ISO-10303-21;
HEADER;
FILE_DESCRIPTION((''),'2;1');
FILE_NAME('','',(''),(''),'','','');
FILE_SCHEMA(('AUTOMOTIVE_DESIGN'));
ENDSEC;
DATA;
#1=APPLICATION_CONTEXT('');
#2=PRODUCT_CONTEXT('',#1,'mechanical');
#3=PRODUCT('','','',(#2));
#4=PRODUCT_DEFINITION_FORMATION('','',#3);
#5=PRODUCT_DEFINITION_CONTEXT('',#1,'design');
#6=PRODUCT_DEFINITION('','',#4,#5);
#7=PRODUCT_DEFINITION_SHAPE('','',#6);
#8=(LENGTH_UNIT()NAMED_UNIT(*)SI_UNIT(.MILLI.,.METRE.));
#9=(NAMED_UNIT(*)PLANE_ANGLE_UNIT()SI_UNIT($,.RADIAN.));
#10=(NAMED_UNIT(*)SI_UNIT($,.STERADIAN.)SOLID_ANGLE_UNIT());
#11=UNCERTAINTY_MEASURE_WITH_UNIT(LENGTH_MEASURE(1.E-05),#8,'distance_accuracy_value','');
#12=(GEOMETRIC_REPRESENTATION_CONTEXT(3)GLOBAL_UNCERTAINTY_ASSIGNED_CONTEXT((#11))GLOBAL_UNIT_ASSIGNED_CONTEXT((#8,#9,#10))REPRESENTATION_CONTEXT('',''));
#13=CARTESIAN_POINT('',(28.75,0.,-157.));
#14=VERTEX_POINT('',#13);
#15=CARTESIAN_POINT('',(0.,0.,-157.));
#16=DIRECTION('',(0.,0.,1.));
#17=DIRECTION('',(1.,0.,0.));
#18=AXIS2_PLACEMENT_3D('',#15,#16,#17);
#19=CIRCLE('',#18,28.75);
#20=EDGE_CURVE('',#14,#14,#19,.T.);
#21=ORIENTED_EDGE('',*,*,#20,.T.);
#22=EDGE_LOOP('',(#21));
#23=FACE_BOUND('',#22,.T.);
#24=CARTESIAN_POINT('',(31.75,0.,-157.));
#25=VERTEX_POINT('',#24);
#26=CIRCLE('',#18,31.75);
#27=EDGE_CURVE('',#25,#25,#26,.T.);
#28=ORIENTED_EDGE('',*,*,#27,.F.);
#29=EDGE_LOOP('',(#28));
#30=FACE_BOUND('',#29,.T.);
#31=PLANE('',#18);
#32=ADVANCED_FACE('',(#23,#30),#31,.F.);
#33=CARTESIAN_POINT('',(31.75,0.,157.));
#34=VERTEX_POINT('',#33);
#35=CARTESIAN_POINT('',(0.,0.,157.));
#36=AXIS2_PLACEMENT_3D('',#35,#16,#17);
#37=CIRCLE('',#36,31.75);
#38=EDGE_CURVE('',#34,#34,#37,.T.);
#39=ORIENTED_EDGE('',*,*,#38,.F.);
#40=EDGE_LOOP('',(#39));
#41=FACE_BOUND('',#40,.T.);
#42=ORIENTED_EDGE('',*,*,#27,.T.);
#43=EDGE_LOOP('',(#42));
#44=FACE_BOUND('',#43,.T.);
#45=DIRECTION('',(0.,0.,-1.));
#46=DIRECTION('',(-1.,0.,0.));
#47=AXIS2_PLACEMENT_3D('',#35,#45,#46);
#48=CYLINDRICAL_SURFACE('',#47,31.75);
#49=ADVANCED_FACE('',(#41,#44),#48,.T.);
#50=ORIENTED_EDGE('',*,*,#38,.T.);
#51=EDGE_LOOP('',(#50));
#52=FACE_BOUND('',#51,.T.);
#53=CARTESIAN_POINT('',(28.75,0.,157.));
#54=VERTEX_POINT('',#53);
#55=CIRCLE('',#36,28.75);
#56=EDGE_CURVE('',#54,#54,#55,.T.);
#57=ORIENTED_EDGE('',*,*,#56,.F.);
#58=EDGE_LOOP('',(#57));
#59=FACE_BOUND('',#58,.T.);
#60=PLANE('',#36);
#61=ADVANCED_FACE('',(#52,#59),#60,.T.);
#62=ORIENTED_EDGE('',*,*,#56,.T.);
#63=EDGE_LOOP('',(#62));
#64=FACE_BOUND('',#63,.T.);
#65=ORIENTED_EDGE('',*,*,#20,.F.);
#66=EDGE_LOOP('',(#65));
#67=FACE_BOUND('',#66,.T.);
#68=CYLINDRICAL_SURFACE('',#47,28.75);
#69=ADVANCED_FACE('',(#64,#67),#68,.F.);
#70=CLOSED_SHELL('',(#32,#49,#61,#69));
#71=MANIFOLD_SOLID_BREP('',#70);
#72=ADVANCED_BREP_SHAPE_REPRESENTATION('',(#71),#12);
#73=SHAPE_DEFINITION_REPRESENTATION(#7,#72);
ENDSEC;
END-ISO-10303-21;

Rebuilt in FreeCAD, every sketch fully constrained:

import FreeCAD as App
import Part
import Sketcher

V = App.Vector
Q = App.Units.Quantity

doc = App.newDocument("Part")
body = doc.addObject("PartDesign::Body", "Body")

# Sketch on XY plane
sketch1 = body.newObject("Sketcher::SketchObject", "Sketch")
sketch1.AttachmentSupport = (doc.getObject("XY_Plane"), [""])
sketch1.MapMode = "FlatFace"
sketch1.addGeometry(Part.Circle(V(0, 0, 0), V(0, 0, 1), 32), False)
sketch1.addGeometry(Part.Circle(V(0, 0, 0), V(0, 0, 1), 29), False)
sketch1.addConstraint(Sketcher.Constraint("Coincident", 0, 3, -1, 1))
sketch1.addConstraint(Sketcher.Constraint("Coincident", 1, 3, -1, 1))
sketch1.addConstraint(Sketcher.Constraint("Diameter", 0, Q("63.5 mm")))
sketch1.addConstraint(Sketcher.Constraint("Diameter", 1, Q("57.5 mm")))
pad1 = body.newObject("PartDesign::Pad", "Pad")
pad1.Profile = sketch1
pad1.Length = 314
pad1.Midplane = True

doc.recompute()
